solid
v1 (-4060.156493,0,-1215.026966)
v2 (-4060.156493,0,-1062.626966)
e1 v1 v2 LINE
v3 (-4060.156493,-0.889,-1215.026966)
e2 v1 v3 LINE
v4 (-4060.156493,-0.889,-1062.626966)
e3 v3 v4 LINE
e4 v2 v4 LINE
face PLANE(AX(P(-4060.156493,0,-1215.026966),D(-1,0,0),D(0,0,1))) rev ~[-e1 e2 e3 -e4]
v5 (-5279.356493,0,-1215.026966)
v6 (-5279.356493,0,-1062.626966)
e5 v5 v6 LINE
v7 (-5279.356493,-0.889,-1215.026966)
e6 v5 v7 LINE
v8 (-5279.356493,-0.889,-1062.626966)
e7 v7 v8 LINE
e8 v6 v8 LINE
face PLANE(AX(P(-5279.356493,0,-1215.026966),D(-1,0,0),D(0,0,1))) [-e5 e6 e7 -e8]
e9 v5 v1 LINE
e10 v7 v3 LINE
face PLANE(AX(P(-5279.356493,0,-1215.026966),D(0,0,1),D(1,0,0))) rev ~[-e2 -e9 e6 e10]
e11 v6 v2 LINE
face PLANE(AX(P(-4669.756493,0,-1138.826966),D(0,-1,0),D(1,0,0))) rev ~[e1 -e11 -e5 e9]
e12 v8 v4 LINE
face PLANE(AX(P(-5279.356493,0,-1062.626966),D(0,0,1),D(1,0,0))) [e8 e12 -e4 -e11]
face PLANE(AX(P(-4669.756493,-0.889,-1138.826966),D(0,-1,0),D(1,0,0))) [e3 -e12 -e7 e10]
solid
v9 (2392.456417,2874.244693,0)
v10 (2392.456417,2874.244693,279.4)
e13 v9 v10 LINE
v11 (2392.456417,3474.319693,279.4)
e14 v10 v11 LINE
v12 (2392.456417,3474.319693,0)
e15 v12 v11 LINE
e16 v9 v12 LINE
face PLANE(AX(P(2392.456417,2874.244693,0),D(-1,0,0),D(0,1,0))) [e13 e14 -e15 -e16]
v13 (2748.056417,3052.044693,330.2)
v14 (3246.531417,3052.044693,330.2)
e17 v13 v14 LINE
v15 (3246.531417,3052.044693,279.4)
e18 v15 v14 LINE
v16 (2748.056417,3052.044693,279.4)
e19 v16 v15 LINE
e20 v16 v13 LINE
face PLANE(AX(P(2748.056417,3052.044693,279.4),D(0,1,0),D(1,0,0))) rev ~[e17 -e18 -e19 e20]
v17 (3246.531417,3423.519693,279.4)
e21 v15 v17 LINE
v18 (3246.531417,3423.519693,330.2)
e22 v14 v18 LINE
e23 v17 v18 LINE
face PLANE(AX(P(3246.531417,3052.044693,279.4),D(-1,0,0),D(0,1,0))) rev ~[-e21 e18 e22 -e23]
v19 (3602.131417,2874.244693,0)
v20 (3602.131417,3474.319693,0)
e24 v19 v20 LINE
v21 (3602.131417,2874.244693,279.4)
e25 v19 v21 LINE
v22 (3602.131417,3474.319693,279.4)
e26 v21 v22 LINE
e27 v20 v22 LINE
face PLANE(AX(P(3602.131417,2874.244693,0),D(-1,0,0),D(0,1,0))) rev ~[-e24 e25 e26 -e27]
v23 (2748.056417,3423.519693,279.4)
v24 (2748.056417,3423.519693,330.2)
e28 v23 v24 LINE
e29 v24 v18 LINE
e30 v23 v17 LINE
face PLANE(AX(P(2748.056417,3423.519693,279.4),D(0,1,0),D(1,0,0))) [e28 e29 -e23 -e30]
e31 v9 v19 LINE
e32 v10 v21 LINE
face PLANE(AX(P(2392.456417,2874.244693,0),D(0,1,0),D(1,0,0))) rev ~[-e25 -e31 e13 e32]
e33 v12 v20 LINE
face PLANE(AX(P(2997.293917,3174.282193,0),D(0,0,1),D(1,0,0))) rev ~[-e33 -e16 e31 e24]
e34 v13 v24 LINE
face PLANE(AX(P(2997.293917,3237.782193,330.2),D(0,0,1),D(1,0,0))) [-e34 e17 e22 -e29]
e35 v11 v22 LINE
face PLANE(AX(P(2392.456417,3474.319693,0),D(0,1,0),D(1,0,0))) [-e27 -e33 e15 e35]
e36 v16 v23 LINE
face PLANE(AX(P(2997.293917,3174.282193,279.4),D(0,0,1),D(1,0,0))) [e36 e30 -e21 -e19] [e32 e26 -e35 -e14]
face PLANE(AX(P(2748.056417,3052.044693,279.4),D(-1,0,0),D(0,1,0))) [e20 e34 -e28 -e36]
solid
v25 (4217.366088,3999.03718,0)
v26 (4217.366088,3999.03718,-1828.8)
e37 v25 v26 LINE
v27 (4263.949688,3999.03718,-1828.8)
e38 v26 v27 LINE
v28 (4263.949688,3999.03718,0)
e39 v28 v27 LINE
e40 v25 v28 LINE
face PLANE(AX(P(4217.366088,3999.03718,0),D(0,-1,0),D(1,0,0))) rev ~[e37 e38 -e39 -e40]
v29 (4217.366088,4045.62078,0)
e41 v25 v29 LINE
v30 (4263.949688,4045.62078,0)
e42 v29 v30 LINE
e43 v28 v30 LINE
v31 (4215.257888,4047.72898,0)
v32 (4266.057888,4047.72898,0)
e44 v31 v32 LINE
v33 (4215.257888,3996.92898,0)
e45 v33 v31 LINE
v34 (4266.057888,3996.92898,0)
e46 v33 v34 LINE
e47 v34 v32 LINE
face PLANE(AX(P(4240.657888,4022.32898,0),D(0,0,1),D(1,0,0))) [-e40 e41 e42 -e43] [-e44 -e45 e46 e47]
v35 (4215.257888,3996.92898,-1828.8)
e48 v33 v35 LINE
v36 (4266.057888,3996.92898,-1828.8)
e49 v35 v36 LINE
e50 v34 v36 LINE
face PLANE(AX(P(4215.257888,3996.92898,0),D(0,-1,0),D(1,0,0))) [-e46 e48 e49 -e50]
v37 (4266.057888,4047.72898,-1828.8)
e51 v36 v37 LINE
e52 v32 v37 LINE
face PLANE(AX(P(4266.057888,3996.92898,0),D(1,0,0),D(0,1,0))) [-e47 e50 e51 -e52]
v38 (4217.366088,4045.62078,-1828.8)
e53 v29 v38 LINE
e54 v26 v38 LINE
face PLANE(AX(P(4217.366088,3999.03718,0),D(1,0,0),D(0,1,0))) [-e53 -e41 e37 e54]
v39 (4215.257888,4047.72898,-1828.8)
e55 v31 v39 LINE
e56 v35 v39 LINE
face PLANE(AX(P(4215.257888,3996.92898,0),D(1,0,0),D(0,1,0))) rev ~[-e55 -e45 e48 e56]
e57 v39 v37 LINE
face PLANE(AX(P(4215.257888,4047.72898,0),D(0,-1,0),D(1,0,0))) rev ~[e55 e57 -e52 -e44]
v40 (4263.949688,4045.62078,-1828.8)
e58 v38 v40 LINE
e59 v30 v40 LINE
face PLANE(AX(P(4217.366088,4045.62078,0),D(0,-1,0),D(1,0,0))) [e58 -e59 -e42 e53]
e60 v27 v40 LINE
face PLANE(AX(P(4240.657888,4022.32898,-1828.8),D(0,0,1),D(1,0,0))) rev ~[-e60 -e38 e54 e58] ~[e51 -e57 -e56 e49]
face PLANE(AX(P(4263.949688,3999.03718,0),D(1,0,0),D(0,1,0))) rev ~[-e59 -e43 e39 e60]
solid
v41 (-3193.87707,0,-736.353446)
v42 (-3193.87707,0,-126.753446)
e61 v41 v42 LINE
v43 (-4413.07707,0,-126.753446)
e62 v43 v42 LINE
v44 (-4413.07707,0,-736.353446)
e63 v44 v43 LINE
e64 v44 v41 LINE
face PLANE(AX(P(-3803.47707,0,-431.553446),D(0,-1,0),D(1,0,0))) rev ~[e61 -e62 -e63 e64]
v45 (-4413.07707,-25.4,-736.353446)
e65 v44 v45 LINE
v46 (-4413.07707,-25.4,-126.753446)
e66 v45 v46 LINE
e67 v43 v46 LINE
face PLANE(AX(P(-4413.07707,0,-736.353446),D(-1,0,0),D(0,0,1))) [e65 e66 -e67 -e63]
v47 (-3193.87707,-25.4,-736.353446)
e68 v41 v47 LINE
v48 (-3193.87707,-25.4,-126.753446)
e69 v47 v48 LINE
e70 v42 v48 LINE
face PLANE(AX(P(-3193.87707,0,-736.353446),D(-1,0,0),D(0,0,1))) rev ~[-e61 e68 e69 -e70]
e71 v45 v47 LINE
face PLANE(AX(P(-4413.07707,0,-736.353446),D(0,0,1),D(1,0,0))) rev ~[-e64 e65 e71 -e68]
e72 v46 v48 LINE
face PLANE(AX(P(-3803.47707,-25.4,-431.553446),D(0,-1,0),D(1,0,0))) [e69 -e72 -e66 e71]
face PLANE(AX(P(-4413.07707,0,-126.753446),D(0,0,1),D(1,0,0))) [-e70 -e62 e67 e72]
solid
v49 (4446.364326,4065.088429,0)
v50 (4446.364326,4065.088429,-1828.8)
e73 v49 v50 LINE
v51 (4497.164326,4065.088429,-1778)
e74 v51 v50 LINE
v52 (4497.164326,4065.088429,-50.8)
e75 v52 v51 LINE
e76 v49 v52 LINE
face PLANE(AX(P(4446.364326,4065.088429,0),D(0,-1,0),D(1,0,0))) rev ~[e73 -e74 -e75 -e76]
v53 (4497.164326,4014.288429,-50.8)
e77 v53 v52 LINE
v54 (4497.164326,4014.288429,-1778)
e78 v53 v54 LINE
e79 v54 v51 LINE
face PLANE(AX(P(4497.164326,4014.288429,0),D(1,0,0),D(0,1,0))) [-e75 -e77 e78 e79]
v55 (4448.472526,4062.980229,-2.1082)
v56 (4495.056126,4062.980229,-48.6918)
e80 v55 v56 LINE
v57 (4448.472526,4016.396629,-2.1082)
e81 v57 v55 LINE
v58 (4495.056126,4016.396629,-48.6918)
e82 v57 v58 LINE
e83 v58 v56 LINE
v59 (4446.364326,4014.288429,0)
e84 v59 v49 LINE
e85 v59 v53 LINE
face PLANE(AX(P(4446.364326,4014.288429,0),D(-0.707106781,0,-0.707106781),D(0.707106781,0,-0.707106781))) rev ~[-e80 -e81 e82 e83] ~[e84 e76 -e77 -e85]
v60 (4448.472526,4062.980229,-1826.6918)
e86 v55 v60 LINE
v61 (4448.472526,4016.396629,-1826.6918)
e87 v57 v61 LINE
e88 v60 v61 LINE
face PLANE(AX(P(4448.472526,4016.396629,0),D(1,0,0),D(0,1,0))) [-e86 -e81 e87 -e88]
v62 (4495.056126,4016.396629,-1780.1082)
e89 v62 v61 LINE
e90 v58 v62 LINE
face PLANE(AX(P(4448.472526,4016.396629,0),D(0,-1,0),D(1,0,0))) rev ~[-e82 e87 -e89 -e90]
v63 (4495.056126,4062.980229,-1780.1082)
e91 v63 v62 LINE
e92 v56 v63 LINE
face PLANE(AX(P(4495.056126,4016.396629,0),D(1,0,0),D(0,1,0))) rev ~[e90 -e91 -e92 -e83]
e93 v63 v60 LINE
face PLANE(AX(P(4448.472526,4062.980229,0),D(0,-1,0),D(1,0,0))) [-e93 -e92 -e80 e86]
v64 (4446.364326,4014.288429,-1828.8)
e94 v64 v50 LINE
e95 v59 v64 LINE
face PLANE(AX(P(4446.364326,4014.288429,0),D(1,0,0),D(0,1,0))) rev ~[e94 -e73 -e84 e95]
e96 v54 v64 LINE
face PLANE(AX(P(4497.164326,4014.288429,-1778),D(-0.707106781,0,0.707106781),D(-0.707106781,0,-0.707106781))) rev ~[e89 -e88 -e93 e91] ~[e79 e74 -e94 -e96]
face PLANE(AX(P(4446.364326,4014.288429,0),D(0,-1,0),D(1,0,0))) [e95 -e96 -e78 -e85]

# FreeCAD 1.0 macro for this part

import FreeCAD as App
import Part
import Sketcher
from FreeCAD import Vector
Q = App.Units.Quantity

doc = App.newDocument("Part")
params = doc.addObject("Spreadsheet::Sheet", "Params")
for row, (alias, value) in enumerate([
    ("sketch1_width", "47.625 in"),
    ("sketch1_height", "23.625 in"),
    ("pad1_length", "11 in"),
    ("sketch2_width", "19.625 in"),
    ("sketch2_height", "14.625 in"),
    ("pad2_length", "2 in"),
    ("sketch3_width", "2 in"),
    ("sketch3_width2", "1.834 in"),
    ("pad3_length", "72 in"),
    ("sketch4_width", "2 in"),
    ("sketch4_width2", "1.834 in"),
    ("pad4_length", "72 in"),
    ("sketch5_width", "2 in"),
    ("sketch6_width", "48 in"),
    ("sketch6_height", "24 in"),
    ("pad5_length", "1 in"),
    ("sketch7_width", "48 in"),
    ("sketch7_height", "6 in"),
    ("pad6_length", "0.035 in"),
], start=1):
    params.set(f"A{row}", alias)
    params.set(f"B{row}", "=" + value)
    params.setAlias(f"B{row}", alias)

body = doc.addObject("PartDesign::Body", "Body")

# Sketch on XY plane
sketch1 = doc.addObject("Sketcher::SketchObject", "Sketch")
body.addObject(sketch1)
sketch1.AttachmentSupport = (doc.XY_Plane, [""])
sketch1.MapMode = "FlatFace"
sketch1.addGeometry([
    Part.LineSegment(Vector(2392.456417, 3474.319693, 0), Vector(2392.456417, 2874.244693, 0)),
    Part.LineSegment(Vector(2392.456417, 2874.244693, 0), Vector(3602.131417, 2874.244693, 0)),
    Part.LineSegment(Vector(3602.131417, 2874.244693, 0), Vector(3602.131417, 3474.319693, 0)),
    Part.LineSegment(Vector(3602.131417, 3474.319693, 0), Vector(2392.456417, 3474.319693, 0)),
], False)
sketch1.addConstraint([
    Sketcher.Constraint("Coincident", 0, 2, 1, 1),
    Sketcher.Constraint("Coincident", 1, 2, 2, 1),
    Sketcher.Constraint("Coincident", 2, 2, 3, 1),
    Sketcher.Constraint("Coincident", 3, 2, 0, 1),
    Sketcher.Constraint("Vertical", 0),
    Sketcher.Constraint("Horizontal", 1),
    Sketcher.Constraint("Vertical", 2),
    Sketcher.Constraint("Horizontal", 3),
    Sketcher.Constraint("DistanceX", 1, 1, 1, 2, Q("47.625 in")),
    Sketcher.Constraint("DistanceY", 0, 2, 0, 1, Q("23.625 in")),
    Sketcher.Constraint("DistanceX", -1, 1, 0, 2, 2392.456417),
    Sketcher.Constraint("DistanceY", -1, 1, 0, 2, 2874.244693),
])
sketch1.setExpression("Constraints[8]", "Params.sketch1_width")
sketch1.setExpression("Constraints[9]", "Params.sketch1_height")
pad1 = doc.addObject("PartDesign::Pad", "Pad")
body.addObject(pad1)
pad1.Profile = sketch1
pad1.setExpression("Length", "Params.pad1_length")

# Sketch on XY plane
sketch2 = doc.addObject("Sketcher::SketchObject", "Sketch001")
body.addObject(sketch2)
sketch2.AttachmentSupport = (doc.XY_Plane, [""])
sketch2.MapMode = "FlatFace"
sketch2.AttachmentOffset = App.Placement(Vector(0, 0, 11 * 25.4), App.Rotation())
sketch2.addGeometry([
    Part.LineSegment(Vector(2748.056417, 3423.519693, 0), Vector(2748.056417, 3052.044693, 0)),
    Part.LineSegment(Vector(2748.056417, 3052.044693, 0), Vector(3246.531417, 3052.044693, 0)),
    Part.LineSegment(Vector(3246.531417, 3052.044693, 0), Vector(3246.531417, 3423.519693, 0)),
    Part.LineSegment(Vector(3246.531417, 3423.519693, 0), Vector(2748.056417, 3423.519693, 0)),
], False)
sketch2.addConstraint([
    Sketcher.Constraint("Coincident", 0, 2, 1, 1),
    Sketcher.Constraint("Coincident", 1, 2, 2, 1),
    Sketcher.Constraint("Coincident", 2, 2, 3, 1),
    Sketcher.Constraint("Coincident", 3, 2, 0, 1),
    Sketcher.Constraint("Vertical", 0),
    Sketcher.Constraint("Horizontal", 1),
    Sketcher.Constraint("Vertical", 2),
    Sketcher.Constraint("Horizontal", 3),
    Sketcher.Constraint("DistanceX", 1, 1, 1, 2, Q("19.625 in")),
    Sketcher.Constraint("DistanceY", 0, 2, 0, 1, Q("14.625 in")),
    Sketcher.Constraint("DistanceX", -1, 1, 0, 2, 2748.056417),
    Sketcher.Constraint("DistanceY", -1, 1, 0, 2, 3052.044693),
])
sketch2.setExpression("Constraints[8]", "Params.sketch2_width")
sketch2.setExpression("Constraints[9]", "Params.sketch2_height")
pad2 = doc.addObject("PartDesign::Pad", "Pad001")
body.addObject(pad2)
pad2.Profile = sketch2
pad2.setExpression("Length", "Params.pad2_length")
body2 = doc.addObject("PartDesign::Body", "Body001")

# Sketch on XY plane
sketch3 = doc.addObject("Sketcher::SketchObject", "Sketch002")
body2.addObject(sketch3)
sketch3.AttachmentSupport = (doc.getObject("XY_Plane001"), [""])
sketch3.MapMode = "FlatFace"
sketch3.addGeometry([
    Part.LineSegment(Vector(4215.257888, 4047.72898, 0), Vector(4215.257888, 3996.92898, 0)),  # 0
    Part.LineSegment(Vector(4215.257888, 3996.92898, 0), Vector(4266.057888, 3996.92898, 0)),  # 1
    Part.LineSegment(Vector(4266.057888, 3996.92898, 0), Vector(4266.057888, 4047.72898, 0)),  # 2
    Part.LineSegment(Vector(4266.057888, 4047.72898, 0), Vector(4215.257888, 4047.72898, 0)),  # 3
    Part.LineSegment(Vector(4263.949688, 3999.03718, 0), Vector(4217.366088, 3999.03718, 0)),  # 4
    Part.LineSegment(Vector(4217.366088, 3999.03718, 0), Vector(4217.366088, 4045.62078, 0)),  # 5
    Part.LineSegment(Vector(4217.366088, 4045.62078, 0), Vector(4263.949688, 4045.62078, 0)),  # 6
    Part.LineSegment(Vector(4263.949688, 4045.62078, 0), Vector(4263.949688, 3999.03718, 0)),  # 7
], False)
sketch3.addConstraint([
    Sketcher.Constraint("Coincident", 0, 2, 1, 1),
    Sketcher.Constraint("Coincident", 1, 2, 2, 1),
    Sketcher.Constraint("Coincident", 2, 2, 3, 1),
    Sketcher.Constraint("Coincident", 3, 2, 0, 1),
    Sketcher.Constraint("Coincident", 4, 2, 5, 1),
    Sketcher.Constraint("Coincident", 5, 2, 6, 1),
    Sketcher.Constraint("Coincident", 6, 2, 7, 1),
    Sketcher.Constraint("Coincident", 7, 2, 4, 1),
    Sketcher.Constraint("Vertical", 0),
    Sketcher.Constraint("Horizontal", 1),
    Sketcher.Constraint("Vertical", 2),
    Sketcher.Constraint("Horizontal", 3),
    Sketcher.Constraint("Horizontal", 4),
    Sketcher.Constraint("Vertical", 5),
    Sketcher.Constraint("Horizontal", 6),
    Sketcher.Constraint("Vertical", 7),
    Sketcher.Constraint("Equal", 3, 0),
    Sketcher.Constraint("Equal", 6, 5),
    Sketcher.Constraint("DistanceX", 1, 1, 1, 2, Q("2 in")),
    Sketcher.Constraint("DistanceX", 4, 2, 4, 1, Q("1.834 in")),
    Sketcher.Constraint("DistanceX", 0, 2, 4, 2, Q("0.083 in")),
    Sketcher.Constraint("DistanceY", 0, 2, 4, 2, Q("0.083 in")),
    Sketcher.Constraint("DistanceX", -1, 1, 0, 2, 4215.257888),
    Sketcher.Constraint("DistanceY", -1, 1, 0, 2, 3996.92898),
])
sketch3.setExpression("Constraints[18]", "Params.sketch3_width")
sketch3.setExpression("Constraints[19]", "Params.sketch3_width2")
pad3 = doc.addObject("PartDesign::Pad", "Pad002")
body2.addObject(pad3)
pad3.Profile = sketch3
pad3.setExpression("Length", "Params.pad3_length")
pad3.Reversed = True
body3 = doc.addObject("PartDesign::Body", "Body002")

# Sketch on XY plane
sketch4 = doc.addObject("Sketcher::SketchObject", "Sketch003")
body3.addObject(sketch4)
sketch4.AttachmentSupport = (doc.getObject("XY_Plane002"), [""])
sketch4.MapMode = "FlatFace"
sketch4.addGeometry([
    Part.LineSegment(Vector(4446.364326, 4065.088429, 0), Vector(4446.364326, 4014.288429, 0)),  # 0
    Part.LineSegment(Vector(4446.364326, 4014.288429, 0), Vector(4497.164326, 4014.288429, 0)),  # 1
    Part.LineSegment(Vector(4497.164326, 4014.288429, 0), Vector(4497.164326, 4065.088429, 0)),  # 2
    Part.LineSegment(Vector(4497.164326, 4065.088429, 0), Vector(4446.364326, 4065.088429, 0)),  # 3
    Part.LineSegment(Vector(4495.056126, 4016.396629, 0), Vector(4448.472526, 4016.396629, 0)),  # 4
    Part.LineSegment(Vector(4448.472526, 4016.396629, 0), Vector(4448.472526, 4062.980229, 0)),  # 5
    Part.LineSegment(Vector(4448.472526, 4062.980229, 0), Vector(4495.056126, 4062.980229, 0)),  # 6
    Part.LineSegment(Vector(4495.056126, 4062.980229, 0), Vector(4495.056126, 4016.396629, 0)),  # 7
], False)
sketch4.addConstraint([
    Sketcher.Constraint("Coincident", 0, 2, 1, 1),
    Sketcher.Constraint("Coincident", 1, 2, 2, 1),
    Sketcher.Constraint("Coincident", 2, 2, 3, 1),
    Sketcher.Constraint("Coincident", 3, 2, 0, 1),
    Sketcher.Constraint("Coincident", 4, 2, 5, 1),
    Sketcher.Constraint("Coincident", 5, 2, 6, 1),
    Sketcher.Constraint("Coincident", 6, 2, 7, 1),
    Sketcher.Constraint("Coincident", 7, 2, 4, 1),
    Sketcher.Constraint("Vertical", 0),
    Sketcher.Constraint("Horizontal", 1),
    Sketcher.Constraint("Vertical", 2),
    Sketcher.Constraint("Horizontal", 3),
    Sketcher.Constraint("Horizontal", 4),
    Sketcher.Constraint("Vertical", 5),
    Sketcher.Constraint("Horizontal", 6),
    Sketcher.Constraint("Vertical", 7),
    Sketcher.Constraint("Equal", 3, 0),
    Sketcher.Constraint("Equal", 6, 5),
    Sketcher.Constraint("DistanceX", 1, 1, 1, 2, Q("2 in")),
    Sketcher.Constraint("DistanceX", 4, 2, 4, 1, Q("1.834 in")),
    Sketcher.Constraint("DistanceX", 0, 2, 4, 2, Q("0.083 in")),
    Sketcher.Constraint("DistanceY", 0, 2, 4, 2, Q("0.083 in")),
    Sketcher.Constraint("DistanceY", -1, 1, 0, 2, 4014.288429),
    Sketcher.Constraint("DistanceX", -1, 1, 0, 2, 4446.364326),
])
sketch4.setExpression("Constraints[18]", "Params.sketch4_width")
sketch4.setExpression("Constraints[19]", "Params.sketch4_width2")
pad4 = doc.addObject("PartDesign::Pad", "Pad003")
body3.addObject(pad4)
pad4.Profile = sketch4
pad4.setExpression("Length", "Params.pad4_length")
pad4.Reversed = True

# Sketch on XZ plane
sketch5 = doc.addObject("Sketcher::SketchObject", "Sketch004")
body3.addObject(sketch5)
sketch5.AttachmentSupport = (doc.getObject("XZ_Plane002"), [""])
sketch5.MapMode = "FlatFace"
sketch5.AttachmentOffset = App.Placement(Vector(0, 0, -4014.288429), App.Rotation())
sketch5.addGeometry([
    Part.LineSegment(Vector(4497.164326, 0, 0), Vector(4446.364326, 0, 0)),  # 0
    Part.LineSegment(Vector(4446.364326, 0, 0), Vector(4497.164326, -50.8, 0)),  # 1
    Part.LineSegment(Vector(4497.164326, -50.8, 0), Vector(4497.164326, 0, 0)),  # 2
    Part.LineSegment(Vector(4497.164326, -1778, 0), Vector(4446.364326, -1828.8, 0)),  # 3
    Part.LineSegment(Vector(4446.364326, -1828.8, 0), Vector(4497.164326, -1828.8, 0)),  # 4
    Part.LineSegment(Vector(4497.164326, -1828.8, 0), Vector(4497.164326, -1778, 0)),  # 5
], False)
sketch5.addConstraint([
    Sketcher.Constraint("Coincident", 0, 2, 1, 1),
    Sketcher.Constraint("Coincident", 1, 2, 2, 1),
    Sketcher.Constraint("Coincident", 2, 2, 0, 1),
    Sketcher.Constraint("Coincident", 3, 2, 4, 1),
    Sketcher.Constraint("Coincident", 4, 2, 5, 1),
    Sketcher.Constraint("Coincident", 5, 2, 3, 1),
    Sketcher.Constraint("Horizontal", 0),
    Sketcher.Constraint("Vertical", 2),
    Sketcher.Constraint("Horizontal", 4),
    Sketcher.Constraint("Vertical", 5),
    Sketcher.Constraint("PointOnObject", 0, 2, -1),
    Sketcher.Constraint("Perpendicular", 1, 3),
    Sketcher.Constraint("Vertical", 0, 2, 3, 2),
    Sketcher.Constraint("Vertical", 2, 2, 4, 2),
    Sketcher.Constraint("Equal", 4, 2),
    Sketcher.Constraint("DistanceX", 0, 2, 0, 1, Q("2 in")),
    Sketcher.Constraint("DistanceY", 3, 2, -1, 1, Q("72 in")),
    Sketcher.Constraint("DistanceX", -1, 1, 0, 2, 4446.364326),
])
sketch5.setExpression("Constraints[15]", "Params.sketch5_width")
pocket1 = doc.addObject("PartDesign::Pocket", "Pocket")
body3.addObject(pocket1)
pocket1.Profile = sketch5
pocket1.Type = "ThroughAll"
body4 = doc.addObject("PartDesign::Body", "Body003")

# Sketch on XZ plane
sketch6 = doc.addObject("Sketcher::SketchObject", "Sketch005")
body4.addObject(sketch6)
sketch6.AttachmentSupport = (doc.getObject("XZ_Plane003"), [""])
sketch6.MapMode = "FlatFace"
sketch6.addGeometry([
    Part.LineSegment(Vector(-4413.07707, -126.753446, 0), Vector(-4413.07707, -736.353446, 0)),
    Part.LineSegment(Vector(-4413.07707, -736.353446, 0), Vector(-3193.87707, -736.353446, 0)),
    Part.LineSegment(Vector(-3193.87707, -736.353446, 0), Vector(-3193.87707, -126.753446, 0)),
    Part.LineSegment(Vector(-3193.87707, -126.753446, 0), Vector(-4413.07707, -126.753446, 0)),
], False)
sketch6.addConstraint([
    Sketcher.Constraint("Coincident", 0, 2, 1, 1),
    Sketcher.Constraint("Coincident", 1, 2, 2, 1),
    Sketcher.Constraint("Coincident", 2, 2, 3, 1),
    Sketcher.Constraint("Coincident", 3, 2, 0, 1),
    Sketcher.Constraint("Vertical", 0),
    Sketcher.Constraint("Horizontal", 1),
    Sketcher.Constraint("Vertical", 2),
    Sketcher.Constraint("Horizontal", 3),
    Sketcher.Constraint("DistanceX", 1, 1, 1, 2, Q("48 in")),
    Sketcher.Constraint("DistanceY", 0, 2, 0, 1, Q("24 in")),
    Sketcher.Constraint("DistanceX", 0, 2, -1, 1, 4413.07707),
    Sketcher.Constraint("DistanceY", 0, 2, -1, 1, 736.353446),
])
sketch6.setExpression("Constraints[8]", "Params.sketch6_width")
sketch6.setExpression("Constraints[9]", "Params.sketch6_height")
pad5 = doc.addObject("PartDesign::Pad", "Pad004")
body4.addObject(pad5)
pad5.Profile = sketch6
pad5.setExpression("Length", "Params.pad5_length")
body5 = doc.addObject("PartDesign::Body", "Body004")

# Sketch on XZ plane
sketch7 = doc.addObject("Sketcher::SketchObject", "Sketch006")
body5.addObject(sketch7)
sketch7.AttachmentSupport = (doc.getObject("XZ_Plane004"), [""])
sketch7.MapMode = "FlatFace"
sketch7.addGeometry([
    Part.LineSegment(Vector(-5279.356493, -1062.626966, 0), Vector(-5279.356493, -1215.026966, 0)),
    Part.LineSegment(Vector(-5279.356493, -1215.026966, 0), Vector(-4060.156493, -1215.026966, 0)),
    Part.LineSegment(Vector(-4060.156493, -1215.026966, 0), Vector(-4060.156493, -1062.626966, 0)),
    Part.LineSegment(Vector(-4060.156493, -1062.626966, 0), Vector(-5279.356493, -1062.626966, 0)),
], False)
sketch7.addConstraint([
    Sketcher.Constraint("Coincident", 0, 2, 1, 1),
    Sketcher.Constraint("Coincident", 1, 2, 2, 1),
    Sketcher.Constraint("Coincident", 2, 2, 3, 1),
    Sketcher.Constraint("Coincident", 3, 2, 0, 1),
    Sketcher.Constraint("Vertical", 0),
    Sketcher.Constraint("Horizontal", 1),
    Sketcher.Constraint("Vertical", 2),
    Sketcher.Constraint("Horizontal", 3),
    Sketcher.Constraint("DistanceX", 1, 1, 1, 2, Q("48 in")),
    Sketcher.Constraint("DistanceY", 0, 2, 0, 1, Q("6 in")),
    Sketcher.Constraint("DistanceX", 0, 2, -1, 1, 5279.356493),
    Sketcher.Constraint("DistanceY", 0, 2, -1, 1, 1215.026966),
])
sketch7.setExpression("Constraints[8]", "Params.sketch7_width")
sketch7.setExpression("Constraints[9]", "Params.sketch7_height")
pad6 = doc.addObject("PartDesign::Pad", "Pad005")
body5.addObject(pad6)
pad6.Profile = sketch7
pad6.setExpression("Length", "Params.pad6_length")

doc.recompute()
